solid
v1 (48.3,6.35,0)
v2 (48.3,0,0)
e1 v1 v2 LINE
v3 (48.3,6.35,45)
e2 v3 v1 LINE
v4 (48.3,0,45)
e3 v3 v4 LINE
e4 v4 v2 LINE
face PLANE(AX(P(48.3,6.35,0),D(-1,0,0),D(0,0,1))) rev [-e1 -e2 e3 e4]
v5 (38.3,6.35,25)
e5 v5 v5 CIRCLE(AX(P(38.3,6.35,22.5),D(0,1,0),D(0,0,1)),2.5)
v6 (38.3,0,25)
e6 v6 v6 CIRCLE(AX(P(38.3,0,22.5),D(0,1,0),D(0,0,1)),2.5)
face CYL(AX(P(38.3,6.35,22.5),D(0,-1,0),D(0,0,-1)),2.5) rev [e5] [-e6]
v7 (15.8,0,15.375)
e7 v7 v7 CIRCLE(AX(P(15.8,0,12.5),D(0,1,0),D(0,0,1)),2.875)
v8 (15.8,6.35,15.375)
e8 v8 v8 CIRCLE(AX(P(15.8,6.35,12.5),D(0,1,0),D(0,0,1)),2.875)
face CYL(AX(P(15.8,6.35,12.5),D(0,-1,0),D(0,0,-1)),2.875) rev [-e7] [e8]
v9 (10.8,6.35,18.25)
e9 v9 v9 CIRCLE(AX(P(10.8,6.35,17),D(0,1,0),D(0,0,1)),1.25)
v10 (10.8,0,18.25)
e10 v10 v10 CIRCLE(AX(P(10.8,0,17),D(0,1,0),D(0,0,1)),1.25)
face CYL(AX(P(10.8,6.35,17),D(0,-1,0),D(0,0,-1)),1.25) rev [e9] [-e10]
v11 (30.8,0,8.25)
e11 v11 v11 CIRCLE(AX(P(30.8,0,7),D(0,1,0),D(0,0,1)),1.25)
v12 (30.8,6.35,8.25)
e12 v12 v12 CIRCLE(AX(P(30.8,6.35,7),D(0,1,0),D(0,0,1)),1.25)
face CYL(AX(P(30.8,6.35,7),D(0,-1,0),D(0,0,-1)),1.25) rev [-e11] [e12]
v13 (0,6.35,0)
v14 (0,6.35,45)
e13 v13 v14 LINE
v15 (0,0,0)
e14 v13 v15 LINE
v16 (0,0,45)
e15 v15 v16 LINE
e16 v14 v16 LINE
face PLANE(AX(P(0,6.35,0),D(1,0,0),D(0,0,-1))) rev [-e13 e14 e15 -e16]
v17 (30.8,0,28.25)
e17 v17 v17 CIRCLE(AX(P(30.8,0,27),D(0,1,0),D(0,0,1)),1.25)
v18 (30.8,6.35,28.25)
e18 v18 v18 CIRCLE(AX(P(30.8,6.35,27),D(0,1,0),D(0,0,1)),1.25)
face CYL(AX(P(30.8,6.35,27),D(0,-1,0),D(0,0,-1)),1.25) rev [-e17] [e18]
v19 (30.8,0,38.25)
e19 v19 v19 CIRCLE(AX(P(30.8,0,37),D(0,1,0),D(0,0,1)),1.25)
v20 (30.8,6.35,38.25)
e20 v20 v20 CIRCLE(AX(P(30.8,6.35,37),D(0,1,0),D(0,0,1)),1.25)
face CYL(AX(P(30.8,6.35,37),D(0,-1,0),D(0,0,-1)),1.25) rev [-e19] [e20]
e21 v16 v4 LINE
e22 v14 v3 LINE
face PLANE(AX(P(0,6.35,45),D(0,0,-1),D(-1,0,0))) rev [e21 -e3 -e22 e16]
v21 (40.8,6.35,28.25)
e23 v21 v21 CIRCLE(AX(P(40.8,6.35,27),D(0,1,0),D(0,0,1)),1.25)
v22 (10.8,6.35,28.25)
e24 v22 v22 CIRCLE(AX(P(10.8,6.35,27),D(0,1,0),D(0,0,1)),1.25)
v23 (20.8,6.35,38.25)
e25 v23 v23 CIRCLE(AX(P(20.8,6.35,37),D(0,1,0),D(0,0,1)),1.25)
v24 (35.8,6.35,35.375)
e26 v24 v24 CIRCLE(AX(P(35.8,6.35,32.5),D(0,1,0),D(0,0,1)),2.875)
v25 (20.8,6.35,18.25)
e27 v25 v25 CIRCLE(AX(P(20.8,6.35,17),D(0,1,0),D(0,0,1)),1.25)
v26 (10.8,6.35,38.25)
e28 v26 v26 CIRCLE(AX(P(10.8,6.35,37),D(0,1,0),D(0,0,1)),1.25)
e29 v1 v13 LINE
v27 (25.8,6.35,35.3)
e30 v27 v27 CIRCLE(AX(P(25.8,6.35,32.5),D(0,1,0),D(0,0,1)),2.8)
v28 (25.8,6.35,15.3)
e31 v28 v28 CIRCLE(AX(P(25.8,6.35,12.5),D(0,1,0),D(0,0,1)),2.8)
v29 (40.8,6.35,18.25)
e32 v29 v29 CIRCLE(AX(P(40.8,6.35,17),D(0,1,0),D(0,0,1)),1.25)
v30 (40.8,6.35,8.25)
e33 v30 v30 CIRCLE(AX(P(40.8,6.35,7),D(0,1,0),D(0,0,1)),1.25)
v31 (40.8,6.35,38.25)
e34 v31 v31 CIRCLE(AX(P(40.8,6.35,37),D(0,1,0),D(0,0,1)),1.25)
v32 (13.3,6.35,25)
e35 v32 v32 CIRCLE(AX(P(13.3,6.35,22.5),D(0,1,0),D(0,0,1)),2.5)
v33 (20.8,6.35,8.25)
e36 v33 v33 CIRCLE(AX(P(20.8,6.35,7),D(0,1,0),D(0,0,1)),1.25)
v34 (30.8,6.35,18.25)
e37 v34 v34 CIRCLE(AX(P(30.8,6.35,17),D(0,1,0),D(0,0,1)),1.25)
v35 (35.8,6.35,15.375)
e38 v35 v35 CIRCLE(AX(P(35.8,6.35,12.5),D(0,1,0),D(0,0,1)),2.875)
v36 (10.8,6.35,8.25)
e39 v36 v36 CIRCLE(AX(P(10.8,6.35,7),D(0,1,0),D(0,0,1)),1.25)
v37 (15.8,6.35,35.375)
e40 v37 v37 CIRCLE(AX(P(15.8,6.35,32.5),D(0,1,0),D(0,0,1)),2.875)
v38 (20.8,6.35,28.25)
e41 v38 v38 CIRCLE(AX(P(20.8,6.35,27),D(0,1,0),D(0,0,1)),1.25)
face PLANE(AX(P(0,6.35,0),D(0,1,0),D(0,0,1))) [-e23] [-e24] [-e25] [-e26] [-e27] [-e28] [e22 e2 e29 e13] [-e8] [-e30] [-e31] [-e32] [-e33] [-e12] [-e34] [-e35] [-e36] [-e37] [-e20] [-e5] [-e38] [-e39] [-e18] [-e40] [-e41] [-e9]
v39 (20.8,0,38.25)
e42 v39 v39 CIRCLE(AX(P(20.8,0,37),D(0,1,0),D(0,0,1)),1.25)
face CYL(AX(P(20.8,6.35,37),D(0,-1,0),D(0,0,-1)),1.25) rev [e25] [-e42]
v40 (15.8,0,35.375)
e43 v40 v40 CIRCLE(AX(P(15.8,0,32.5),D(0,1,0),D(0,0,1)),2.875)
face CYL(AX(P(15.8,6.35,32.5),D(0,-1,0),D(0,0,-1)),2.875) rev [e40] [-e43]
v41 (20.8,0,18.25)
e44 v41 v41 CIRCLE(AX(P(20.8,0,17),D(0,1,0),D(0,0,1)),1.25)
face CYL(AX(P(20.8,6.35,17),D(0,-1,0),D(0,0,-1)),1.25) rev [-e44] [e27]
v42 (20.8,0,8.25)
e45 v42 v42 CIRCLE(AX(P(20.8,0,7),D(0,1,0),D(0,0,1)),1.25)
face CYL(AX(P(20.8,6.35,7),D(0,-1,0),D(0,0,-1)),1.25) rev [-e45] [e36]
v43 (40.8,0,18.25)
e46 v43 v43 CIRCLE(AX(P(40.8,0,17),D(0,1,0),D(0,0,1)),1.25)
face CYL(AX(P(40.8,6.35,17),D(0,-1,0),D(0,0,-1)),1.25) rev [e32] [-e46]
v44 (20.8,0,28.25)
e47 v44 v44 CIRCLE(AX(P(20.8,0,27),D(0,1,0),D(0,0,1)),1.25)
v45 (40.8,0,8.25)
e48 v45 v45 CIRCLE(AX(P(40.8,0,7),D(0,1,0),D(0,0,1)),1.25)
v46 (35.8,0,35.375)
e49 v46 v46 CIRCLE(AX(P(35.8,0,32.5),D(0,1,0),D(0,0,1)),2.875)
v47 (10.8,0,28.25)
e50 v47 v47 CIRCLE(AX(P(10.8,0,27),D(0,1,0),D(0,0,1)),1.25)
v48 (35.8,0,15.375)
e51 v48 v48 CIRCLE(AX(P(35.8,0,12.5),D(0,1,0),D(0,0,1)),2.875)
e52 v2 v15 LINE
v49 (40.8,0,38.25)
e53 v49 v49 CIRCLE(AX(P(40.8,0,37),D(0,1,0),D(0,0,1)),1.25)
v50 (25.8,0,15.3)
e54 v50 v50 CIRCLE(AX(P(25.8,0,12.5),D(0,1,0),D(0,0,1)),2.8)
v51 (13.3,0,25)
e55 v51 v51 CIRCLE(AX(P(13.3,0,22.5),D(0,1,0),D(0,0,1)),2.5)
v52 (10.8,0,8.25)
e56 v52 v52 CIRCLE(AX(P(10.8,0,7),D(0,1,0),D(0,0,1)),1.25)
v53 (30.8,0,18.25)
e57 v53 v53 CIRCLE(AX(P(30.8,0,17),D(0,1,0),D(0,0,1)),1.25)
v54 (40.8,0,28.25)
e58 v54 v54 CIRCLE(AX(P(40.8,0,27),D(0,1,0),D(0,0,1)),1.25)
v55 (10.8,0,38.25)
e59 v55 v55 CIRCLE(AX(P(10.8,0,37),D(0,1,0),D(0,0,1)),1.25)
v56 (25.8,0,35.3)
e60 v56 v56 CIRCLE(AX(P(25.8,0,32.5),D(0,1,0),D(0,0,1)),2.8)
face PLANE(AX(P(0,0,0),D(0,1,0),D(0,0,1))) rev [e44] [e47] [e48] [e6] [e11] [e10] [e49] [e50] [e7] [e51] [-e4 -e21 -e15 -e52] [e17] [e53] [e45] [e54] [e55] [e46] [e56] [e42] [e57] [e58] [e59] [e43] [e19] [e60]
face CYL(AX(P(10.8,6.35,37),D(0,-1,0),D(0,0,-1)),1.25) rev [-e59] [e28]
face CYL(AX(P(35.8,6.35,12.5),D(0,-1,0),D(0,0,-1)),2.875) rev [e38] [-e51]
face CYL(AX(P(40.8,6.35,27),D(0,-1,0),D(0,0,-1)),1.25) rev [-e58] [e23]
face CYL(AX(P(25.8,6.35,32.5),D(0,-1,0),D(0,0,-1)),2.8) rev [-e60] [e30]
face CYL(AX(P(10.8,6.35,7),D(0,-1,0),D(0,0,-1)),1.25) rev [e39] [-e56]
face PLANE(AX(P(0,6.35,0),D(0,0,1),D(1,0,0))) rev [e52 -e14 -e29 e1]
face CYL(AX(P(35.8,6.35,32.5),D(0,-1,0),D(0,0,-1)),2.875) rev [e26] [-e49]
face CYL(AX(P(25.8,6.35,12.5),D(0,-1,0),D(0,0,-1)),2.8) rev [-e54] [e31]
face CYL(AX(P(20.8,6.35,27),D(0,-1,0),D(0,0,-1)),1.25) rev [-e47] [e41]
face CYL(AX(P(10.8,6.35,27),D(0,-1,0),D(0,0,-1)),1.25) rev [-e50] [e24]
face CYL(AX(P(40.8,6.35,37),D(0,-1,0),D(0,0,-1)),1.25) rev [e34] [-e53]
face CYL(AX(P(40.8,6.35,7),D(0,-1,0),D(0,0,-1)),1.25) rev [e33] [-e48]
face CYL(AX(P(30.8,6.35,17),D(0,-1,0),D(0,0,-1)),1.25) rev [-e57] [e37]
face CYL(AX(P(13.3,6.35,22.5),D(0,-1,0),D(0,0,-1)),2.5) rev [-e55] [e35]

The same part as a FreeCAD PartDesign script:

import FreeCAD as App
import Part
import Sketcher

V = App.Vector

doc = App.newDocument("Part")
params = doc.addObject("Spreadsheet::Sheet", "Params")
for row, (alias, value) in enumerate([
    ("sketch1_diameter", "5 mm"),
    ("sketch1_diameter2", "2.5 mm"),
    ("sketch1_diameter3", "5.6 mm"),
    ("sketch1_diameter4", "5.75 mm"),
    ("sketch1_height", "45 mm"),
    ("pad1_length", "6.35 mm"),
], start=1):
    params.set(f"A{row}", alias)
    params.set(f"B{row}", "=" + value)
    params.setAlias(f"B{row}", alias)

body = doc.addObject("PartDesign::Body", "Body")

sketch1 = body.newObject("Sketcher::SketchObject", "Sketch")
sketch1.AttachmentSupport = (doc.getObject("XZ_Plane"), [""])
sketch1.MapMode = "FlatFace"
sketch1.addGeometry([
    Part.LineSegment(V(0, 0, 0), V(0, 45, 0)),
    Part.LineSegment(V(0, 45, 0), V(48.3, 45, 0)),
    Part.LineSegment(V(48.3, 45, 0), V(48.3, 0, 0)),
    Part.LineSegment(V(48.3, 0, 0), V(0, 0, 0)),
    Part.Circle(V(10.8, 37, 0), V(0, 0, 1), 1.25),
    Part.Circle(V(15.8, 32.5, 0), V(0, 0, 1), 2.875),
    Part.Circle(V(20.8, 37, 0), V(0, 0, 1), 1.25),
    Part.Circle(V(10.8, 27, 0), V(0, 0, 1), 1.25),
    Part.Circle(V(13.3, 22.5, 0), V(0, 0, 1), 2.5),
    Part.Circle(V(20.8, 27, 0), V(0, 0, 1), 1.25),
    Part.Circle(V(30.8, 37, 0), V(0, 0, 1), 1.25),
    Part.Circle(V(25.8, 32.5, 0), V(0, 0, 1), 2.8),
    Part.Circle(V(40.8, 37, 0), V(0, 0, 1), 1.25),
    Part.Circle(V(35.8, 32.5, 0), V(0, 0, 1), 2.875),
    Part.Circle(V(30.8, 27, 0), V(0, 0, 1), 1.25),
    Part.Circle(V(40.8, 27, 0), V(0, 0, 1), 1.25),
    Part.Circle(V(38.3, 22.5, 0), V(0, 0, 1), 2.5),
    Part.Circle(V(10.8, 17, 0), V(0, 0, 1), 1.25),
    Part.Circle(V(20.8, 17, 0), V(0, 0, 1), 1.25),
    Part.Circle(V(15.8, 12.5, 0), V(0, 0, 1), 2.875),
    Part.Circle(V(10.8, 7, 0), V(0, 0, 1), 1.25),
    Part.Circle(V(20.8, 7, 0), V(0, 0, 1), 1.25),
    Part.Circle(V(30.8, 17, 0), V(0, 0, 1), 1.25),
    Part.Circle(V(40.8, 17, 0), V(0, 0, 1), 1.25),
    Part.Circle(V(25.8, 12.5, 0), V(0, 0, 1), 2.8),
    Part.Circle(V(30.8, 7, 0), V(0, 0, 1), 1.25),
    Part.Circle(V(35.8, 12.5, 0), V(0, 0, 1), 2.875),
    Part.Circle(V(40.8, 7, 0), V(0, 0, 1), 1.25),
], False)
sketch1.addConstraint([
    Sketcher.Constraint("Coincident", 0, 2, 1, 1),
    Sketcher.Constraint("Coincident", 1, 2, 2, 1),
    Sketcher.Constraint("Coincident", 2, 2, 3, 1),
    Sketcher.Constraint("Coincident", 3, 2, 0, 1),
    Sketcher.Constraint("Vertical", 0),
    Sketcher.Constraint("Horizontal", 1),
    Sketcher.Constraint("Vertical", 2),
    Sketcher.Constraint("Horizontal", 3),
    Sketcher.Constraint("Coincident", 3, 2, -1, 1),
    Sketcher.Constraint("Equal", 4, 6),
    Sketcher.Constraint("Equal", 6, 7),
    Sketcher.Constraint("Equal", 7, 9),
    Sketcher.Constraint("Equal", 9, 10),
    Sketcher.Constraint("Equal", 10, 12),
    Sketcher.Constraint("Equal", 5, 13),
    Sketcher.Constraint("Equal", 12, 14),
    Sketcher.Constraint("Equal", 14, 15),
    Sketcher.Constraint("Equal", 8, 16),
    Sketcher.Constraint("Equal", 15, 17),
    Sketcher.Constraint("Equal", 17, 18),
    Sketcher.Constraint("Equal", 13, 19),
    Sketcher.Constraint("Equal", 18, 20),
    Sketcher.Constraint("Equal", 20, 21),
    Sketcher.Constraint("Equal", 21, 22),
    Sketcher.Constraint("Equal", 22, 23),
    Sketcher.Constraint("Equal", 11, 24),
    Sketcher.Constraint("Equal", 23, 25),
    Sketcher.Constraint("Equal", 19, 26),
    Sketcher.Constraint("Equal", 25, 27),
    Sketcher.Constraint("Horizontal", 4, 3, 6, 3),
    Sketcher.Constraint("Horizontal", 7, 3, 9, 3),
    Sketcher.Constraint("Horizontal", 6, 3, 10, 3),
    Sketcher.Constraint("Horizontal", 5, 3, 11, 3),
    Sketcher.Constraint("Horizontal", 10, 3, 12, 3),
    Sketcher.Constraint("Horizontal", 11, 3, 13, 3),
    Sketcher.Constraint("Horizontal", 9, 3, 14, 3),
    Sketcher.Constraint("Horizontal", 14, 3, 15, 3),
    Sketcher.Constraint("Horizontal", 8, 3, 16, 3),
    Sketcher.Constraint("Horizontal", 17, 3, 18, 3),
    Sketcher.Constraint("Horizontal", 20, 3, 21, 3),
    Sketcher.Constraint("Horizontal", 18, 3, 22, 3),
    Sketcher.Constraint("Horizontal", 22, 3, 23, 3),
    Sketcher.Constraint("Horizontal", 19, 3, 24, 3),
    Sketcher.Constraint("Horizontal", 21, 3, 25, 3),
    Sketcher.Constraint("Horizontal", 24, 3, 26, 3),
    Sketcher.Constraint("Horizontal", 25, 3, 27, 3),
    Sketcher.Constraint("Vertical", 4, 3, 7, 3),
    Sketcher.Constraint("Vertical", 6, 3, 9, 3),
    Sketcher.Constraint("Vertical", 10, 3, 14, 3),
    Sketcher.Constraint("Vertical", 12, 3, 15, 3),
    Sketcher.Constraint("Vertical", 7, 3, 17, 3),
    Sketcher.Constraint("Vertical", 9, 3, 18, 3),
    Sketcher.Constraint("Vertical", 5, 3, 19, 3),
    Sketcher.Constraint("Vertical", 17, 3, 20, 3),
    Sketcher.Constraint("Vertical", 18, 3, 21, 3),
    Sketcher.Constraint("Vertical", 14, 3, 22, 3),
    Sketcher.Constraint("Vertical", 15, 3, 23, 3),
    Sketcher.Constraint("Vertical", 11, 3, 24, 3),
    Sketcher.Constraint("Vertical", 22, 3, 25, 3),
    Sketcher.Constraint("Vertical", 13, 3, 26, 3),
    Sketcher.Constraint("Vertical", 23, 3, 27, 3),
    Sketcher.Constraint("Diameter", 8, 5.0),
    Sketcher.Constraint("Diameter", 4, 2.5),
    Sketcher.Constraint("Diameter", 11, 5.6),
    Sketcher.Constraint("Diameter", 5, 5.75),
    Sketcher.Constraint("DistanceY", 0, 1, 0, 2, 45.0),
    Sketcher.Constraint("DistanceX", 1, 1, 1, 2, 48.3),
    Sketcher.Constraint("DistanceY", -1, 1, 4, 3, 37.0),
    Sketcher.Constraint("DistanceY", -1, 1, 7, 3, 27.0),
    Sketcher.Constraint("DistanceY", -1, 1, 17, 3, 17.0),
    Sketcher.Constraint("DistanceY", -1, 1, 20, 3, 7.0),
    Sketcher.Constraint("DistanceX", 4, 3, 5, 3, 5.0),
    Sketcher.Constraint("DistanceX", 5, 3, 6, 3, 5.0),
    Sketcher.Constraint("DistanceY", 8, 3, 5, 3, 10.0),
    Sketcher.Constraint("DistanceX", 6, 3, 10, 3, 10.0),
    Sketcher.Constraint("DistanceX", 6, 3, 11, 3, 5.0),
    Sketcher.Constraint("DistanceX", 10, 3, 12, 3, 10.0),
    Sketcher.Constraint("DistanceX", 10, 3, 13, 3, 5.0),
    Sketcher.Constraint("DistanceY", 19, 3, 8, 3, 10.0),
    Sketcher.Constraint("DistanceX", 16, 3, 1, 2, 10.0),
    Sketcher.Constraint("DistanceX", -1, 1, 4, 3, 10.8),
    Sketcher.Constraint("DistanceY", -1, 1, 5, 3, 32.5),
    Sketcher.Constraint("DistanceX", -1, 1, 8, 3, 13.3),
])
sketch1.setExpression("Constraints[61]", "Params.sketch1_diameter")
sketch1.setExpression("Constraints[62]", "Params.sketch1_diameter2")
sketch1.setExpression("Constraints[63]", "Params.sketch1_diameter3")
sketch1.setExpression("Constraints[64]", "Params.sketch1_diameter4")
sketch1.setExpression("Constraints[65]", "Params.sketch1_height")
pad1 = body.newObject("PartDesign::Pad", "Pad")
pad1.Profile = sketch1
pad1.setExpression("Length", "Params.pad1_length")
pad1.Reversed = True

doc.recompute()
